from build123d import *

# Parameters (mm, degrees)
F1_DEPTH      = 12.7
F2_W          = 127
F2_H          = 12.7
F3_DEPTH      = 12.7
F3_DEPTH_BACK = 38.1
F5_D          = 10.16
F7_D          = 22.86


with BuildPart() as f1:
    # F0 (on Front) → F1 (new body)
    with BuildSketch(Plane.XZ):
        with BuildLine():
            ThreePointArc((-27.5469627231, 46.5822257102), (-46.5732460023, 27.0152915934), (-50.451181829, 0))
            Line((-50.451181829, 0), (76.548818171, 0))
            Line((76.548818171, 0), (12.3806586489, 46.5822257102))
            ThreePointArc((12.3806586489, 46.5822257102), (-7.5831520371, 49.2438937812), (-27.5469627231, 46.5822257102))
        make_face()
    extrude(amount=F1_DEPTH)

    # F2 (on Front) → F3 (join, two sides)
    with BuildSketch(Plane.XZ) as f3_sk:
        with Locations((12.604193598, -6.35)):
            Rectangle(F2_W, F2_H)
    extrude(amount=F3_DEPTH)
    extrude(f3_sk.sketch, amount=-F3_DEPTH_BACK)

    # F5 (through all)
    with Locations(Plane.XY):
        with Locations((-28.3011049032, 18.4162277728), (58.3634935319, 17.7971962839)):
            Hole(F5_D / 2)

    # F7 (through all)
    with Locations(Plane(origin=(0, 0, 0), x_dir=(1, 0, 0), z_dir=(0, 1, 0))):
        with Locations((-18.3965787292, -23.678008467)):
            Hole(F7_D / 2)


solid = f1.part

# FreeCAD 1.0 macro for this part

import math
import FreeCAD as App
import Part
import Sketcher
Q = App.Units.Quantity

doc = App.newDocument("Part")
body = doc.addObject("PartDesign::Body", "Body")

# Sketch on XZ plane
sketch1 = body.newObject("Sketcher::SketchObject", "Sketch")
sketch1.AttachmentSupport = (doc.getObject("XZ_Plane"), [""])
sketch1.MapMode = "FlatFace"
sketch1.addGeometry([
    Part.ArcOfCircle(Part.Circle(App.Vector(-6.97526, 7.545184, 0), App.Vector(0, 0, 1), 44.125792), math.radians(117.78829), math.radians(189.845536)),
    Part.LineSegment(App.Vector(-50.451182, 0, 0), App.Vector(76.548818, 0, 0)),
    Part.LineSegment(App.Vector(76.548818, 0, 0), App.Vector(12.380659, 46.582226, 0)),
    Part.ArcOfCircle(Part.Circle(App.Vector(-7.583152, -26.956106, 0), App.Vector(0, 0, 1), 76.2), math.radians(74.811691), math.radians(105.188309)),
], False)
sketch1.addConstraint([
    Sketcher.Constraint("Coincident", 0, 2, 1, 1),
    Sketcher.Constraint("Coincident", 1, 2, 2, 1),
    Sketcher.Constraint("Coincident", 2, 2, 3, 1),
    Sketcher.Constraint("Coincident", 3, 2, 0, 1),
    Sketcher.Constraint("Horizontal", 1),
    Sketcher.Constraint("PointOnObject", 0, 2, -1),
    Sketcher.Constraint("Horizontal", 2, 2, 3, 2),
    Sketcher.Constraint("Radius", 3, Q("3 in")),
    Sketcher.Constraint("DistanceX", 1, 1, 1, 2, Q("5 in")),
    Sketcher.Constraint("Radius", 0, 44.125792),
    Sketcher.Constraint("DistanceX", 0, 3, -1, 1, 6.97526),
    Sketcher.Constraint("DistanceX", 0, 2, -1, 1, 50.451182),
    Sketcher.Constraint("DistanceX", -1, 1, 2, 2, 12.380659),
    Sketcher.Constraint("DistanceX", 3, 3, 0, 3, 0.607892),
])
pad1 = body.newObject("PartDesign::Pad", "Pad")
pad1.Profile = sketch1
pad1.Length = Q("0.5 in")

# Sketch on XZ plane
sketch2 = body.newObject("Sketcher::SketchObject", "Sketch001")
sketch2.AttachmentSupport = (doc.getObject("XZ_Plane"), [""])
sketch2.MapMode = "FlatFace"
sketch2.addGeometry([
    Part.LineSegment(App.Vector(-50.895806, 0, 0), App.Vector(-50.895806, -12.7, 0)),
    Part.LineSegment(App.Vector(-50.895806, -12.7, 0), App.Vector(76.104194, -12.7, 0)),
    Part.LineSegment(App.Vector(76.104194, -12.7, 0), App.Vector(76.104194, 0, 0)),
    Part.LineSegment(App.Vector(76.104194, 0, 0), App.Vector(-50.895806, 0, 0)),
], False)
sketch2.addConstraint([
    Sketcher.Constraint("Coincident", 0, 2, 1, 1),
    Sketcher.Constraint("Coincident", 1, 2, 2, 1),
    Sketcher.Constraint("Coincident", 2, 2, 3, 1),
    Sketcher.Constraint("Coincident", 3, 2, 0, 1),
    Sketcher.Constraint("Vertical", 0),
    Sketcher.Constraint("Horizontal", 1),
    Sketcher.Constraint("Vertical", 2),
    Sketcher.Constraint("Horizontal", 3),
    Sketcher.Constraint("PointOnObject", 2, 2, -1),
    Sketcher.Constraint("DistanceX", 1, 1, 1, 2, Q("5 in")),
    Sketcher.Constraint("DistanceY", 0, 2, 0, 1, Q("0.5 in")),
    Sketcher.Constraint("DistanceX", 0, 2, -1, 1, 50.895806),
])
pad2 = body.newObject("PartDesign::Pad", "Pad001")
pad2.Profile = sketch2
pad2.Type = "TwoLengths"
pad2.Length = Q("0.5 in")
pad2.Length2 = Q("1.5 in")

# Sketch on XY plane
sketch3 = body.newObject("Sketcher::SketchObject", "Sketch002")
sketch3.AttachmentSupport = (doc.getObject("XY_Plane"), [""])
sketch3.MapMode = "FlatFace"
sketch3.addGeometry([
    Part.Circle(App.Vector(-28.301105, 18.416228, 0), App.Vector(0, 0, 1), 5.08),
    Part.Circle(App.Vector(58.363494, 17.797196, 0), App.Vector(0, 0, 1), 5.08),
], False)
sketch3.addConstraint([
    Sketcher.Constraint("Equal", 0, 1),
    Sketcher.Constraint("Diameter", 0, Q("0.4 in")),
    Sketcher.Constraint("DistanceX", 0, 3, 1, 3, 86.664598),
    Sketcher.Constraint("DistanceY", 1, 3, 0, 3, 0.619031),
    Sketcher.Constraint("DistanceX", 0, 3, -1, 1, 28.301105),
    Sketcher.Constraint("DistanceY", -1, 1, 0, 3, 18.416228),
])
doc.recompute()
hole = body.newObject("PartDesign::Hole", "Hole")
hole.Profile = sketch3
hole.ThreadType = "None"
hole.Diameter = Q("0.4 in")
hole.DepthType = "ThroughAll"

# Sketch on XZ plane
sketch4 = body.newObject("Sketcher::SketchObject", "Sketch003")
sketch4.AttachmentSupport = (doc.getObject("XZ_Plane"), [""])
sketch4.MapMode = "FlatFace"
sketch4.addGeometry(Part.Circle(App.Vector(-18.396579, 23.678008, 0), App.Vector(0, 0, 1), 11.43), False)
sketch4.addConstraint([
    Sketcher.Constraint("Diameter", 0, Q("0.9 in")),
    Sketcher.Constraint("DistanceX", 0, 3, -1, 1, 18.396579),
    Sketcher.Constraint("DistanceY", -1, 1, 0, 3, 23.678008),
])
doc.recompute()
hole2 = body.newObject("PartDesign::Hole", "Hole001")
hole2.Profile = sketch4
hole2.ThreadType = "None"
hole2.Diameter = Q("0.9 in")
hole2.DepthType = "ThroughAll"
hole2.Reversed = True

doc.recompute()
